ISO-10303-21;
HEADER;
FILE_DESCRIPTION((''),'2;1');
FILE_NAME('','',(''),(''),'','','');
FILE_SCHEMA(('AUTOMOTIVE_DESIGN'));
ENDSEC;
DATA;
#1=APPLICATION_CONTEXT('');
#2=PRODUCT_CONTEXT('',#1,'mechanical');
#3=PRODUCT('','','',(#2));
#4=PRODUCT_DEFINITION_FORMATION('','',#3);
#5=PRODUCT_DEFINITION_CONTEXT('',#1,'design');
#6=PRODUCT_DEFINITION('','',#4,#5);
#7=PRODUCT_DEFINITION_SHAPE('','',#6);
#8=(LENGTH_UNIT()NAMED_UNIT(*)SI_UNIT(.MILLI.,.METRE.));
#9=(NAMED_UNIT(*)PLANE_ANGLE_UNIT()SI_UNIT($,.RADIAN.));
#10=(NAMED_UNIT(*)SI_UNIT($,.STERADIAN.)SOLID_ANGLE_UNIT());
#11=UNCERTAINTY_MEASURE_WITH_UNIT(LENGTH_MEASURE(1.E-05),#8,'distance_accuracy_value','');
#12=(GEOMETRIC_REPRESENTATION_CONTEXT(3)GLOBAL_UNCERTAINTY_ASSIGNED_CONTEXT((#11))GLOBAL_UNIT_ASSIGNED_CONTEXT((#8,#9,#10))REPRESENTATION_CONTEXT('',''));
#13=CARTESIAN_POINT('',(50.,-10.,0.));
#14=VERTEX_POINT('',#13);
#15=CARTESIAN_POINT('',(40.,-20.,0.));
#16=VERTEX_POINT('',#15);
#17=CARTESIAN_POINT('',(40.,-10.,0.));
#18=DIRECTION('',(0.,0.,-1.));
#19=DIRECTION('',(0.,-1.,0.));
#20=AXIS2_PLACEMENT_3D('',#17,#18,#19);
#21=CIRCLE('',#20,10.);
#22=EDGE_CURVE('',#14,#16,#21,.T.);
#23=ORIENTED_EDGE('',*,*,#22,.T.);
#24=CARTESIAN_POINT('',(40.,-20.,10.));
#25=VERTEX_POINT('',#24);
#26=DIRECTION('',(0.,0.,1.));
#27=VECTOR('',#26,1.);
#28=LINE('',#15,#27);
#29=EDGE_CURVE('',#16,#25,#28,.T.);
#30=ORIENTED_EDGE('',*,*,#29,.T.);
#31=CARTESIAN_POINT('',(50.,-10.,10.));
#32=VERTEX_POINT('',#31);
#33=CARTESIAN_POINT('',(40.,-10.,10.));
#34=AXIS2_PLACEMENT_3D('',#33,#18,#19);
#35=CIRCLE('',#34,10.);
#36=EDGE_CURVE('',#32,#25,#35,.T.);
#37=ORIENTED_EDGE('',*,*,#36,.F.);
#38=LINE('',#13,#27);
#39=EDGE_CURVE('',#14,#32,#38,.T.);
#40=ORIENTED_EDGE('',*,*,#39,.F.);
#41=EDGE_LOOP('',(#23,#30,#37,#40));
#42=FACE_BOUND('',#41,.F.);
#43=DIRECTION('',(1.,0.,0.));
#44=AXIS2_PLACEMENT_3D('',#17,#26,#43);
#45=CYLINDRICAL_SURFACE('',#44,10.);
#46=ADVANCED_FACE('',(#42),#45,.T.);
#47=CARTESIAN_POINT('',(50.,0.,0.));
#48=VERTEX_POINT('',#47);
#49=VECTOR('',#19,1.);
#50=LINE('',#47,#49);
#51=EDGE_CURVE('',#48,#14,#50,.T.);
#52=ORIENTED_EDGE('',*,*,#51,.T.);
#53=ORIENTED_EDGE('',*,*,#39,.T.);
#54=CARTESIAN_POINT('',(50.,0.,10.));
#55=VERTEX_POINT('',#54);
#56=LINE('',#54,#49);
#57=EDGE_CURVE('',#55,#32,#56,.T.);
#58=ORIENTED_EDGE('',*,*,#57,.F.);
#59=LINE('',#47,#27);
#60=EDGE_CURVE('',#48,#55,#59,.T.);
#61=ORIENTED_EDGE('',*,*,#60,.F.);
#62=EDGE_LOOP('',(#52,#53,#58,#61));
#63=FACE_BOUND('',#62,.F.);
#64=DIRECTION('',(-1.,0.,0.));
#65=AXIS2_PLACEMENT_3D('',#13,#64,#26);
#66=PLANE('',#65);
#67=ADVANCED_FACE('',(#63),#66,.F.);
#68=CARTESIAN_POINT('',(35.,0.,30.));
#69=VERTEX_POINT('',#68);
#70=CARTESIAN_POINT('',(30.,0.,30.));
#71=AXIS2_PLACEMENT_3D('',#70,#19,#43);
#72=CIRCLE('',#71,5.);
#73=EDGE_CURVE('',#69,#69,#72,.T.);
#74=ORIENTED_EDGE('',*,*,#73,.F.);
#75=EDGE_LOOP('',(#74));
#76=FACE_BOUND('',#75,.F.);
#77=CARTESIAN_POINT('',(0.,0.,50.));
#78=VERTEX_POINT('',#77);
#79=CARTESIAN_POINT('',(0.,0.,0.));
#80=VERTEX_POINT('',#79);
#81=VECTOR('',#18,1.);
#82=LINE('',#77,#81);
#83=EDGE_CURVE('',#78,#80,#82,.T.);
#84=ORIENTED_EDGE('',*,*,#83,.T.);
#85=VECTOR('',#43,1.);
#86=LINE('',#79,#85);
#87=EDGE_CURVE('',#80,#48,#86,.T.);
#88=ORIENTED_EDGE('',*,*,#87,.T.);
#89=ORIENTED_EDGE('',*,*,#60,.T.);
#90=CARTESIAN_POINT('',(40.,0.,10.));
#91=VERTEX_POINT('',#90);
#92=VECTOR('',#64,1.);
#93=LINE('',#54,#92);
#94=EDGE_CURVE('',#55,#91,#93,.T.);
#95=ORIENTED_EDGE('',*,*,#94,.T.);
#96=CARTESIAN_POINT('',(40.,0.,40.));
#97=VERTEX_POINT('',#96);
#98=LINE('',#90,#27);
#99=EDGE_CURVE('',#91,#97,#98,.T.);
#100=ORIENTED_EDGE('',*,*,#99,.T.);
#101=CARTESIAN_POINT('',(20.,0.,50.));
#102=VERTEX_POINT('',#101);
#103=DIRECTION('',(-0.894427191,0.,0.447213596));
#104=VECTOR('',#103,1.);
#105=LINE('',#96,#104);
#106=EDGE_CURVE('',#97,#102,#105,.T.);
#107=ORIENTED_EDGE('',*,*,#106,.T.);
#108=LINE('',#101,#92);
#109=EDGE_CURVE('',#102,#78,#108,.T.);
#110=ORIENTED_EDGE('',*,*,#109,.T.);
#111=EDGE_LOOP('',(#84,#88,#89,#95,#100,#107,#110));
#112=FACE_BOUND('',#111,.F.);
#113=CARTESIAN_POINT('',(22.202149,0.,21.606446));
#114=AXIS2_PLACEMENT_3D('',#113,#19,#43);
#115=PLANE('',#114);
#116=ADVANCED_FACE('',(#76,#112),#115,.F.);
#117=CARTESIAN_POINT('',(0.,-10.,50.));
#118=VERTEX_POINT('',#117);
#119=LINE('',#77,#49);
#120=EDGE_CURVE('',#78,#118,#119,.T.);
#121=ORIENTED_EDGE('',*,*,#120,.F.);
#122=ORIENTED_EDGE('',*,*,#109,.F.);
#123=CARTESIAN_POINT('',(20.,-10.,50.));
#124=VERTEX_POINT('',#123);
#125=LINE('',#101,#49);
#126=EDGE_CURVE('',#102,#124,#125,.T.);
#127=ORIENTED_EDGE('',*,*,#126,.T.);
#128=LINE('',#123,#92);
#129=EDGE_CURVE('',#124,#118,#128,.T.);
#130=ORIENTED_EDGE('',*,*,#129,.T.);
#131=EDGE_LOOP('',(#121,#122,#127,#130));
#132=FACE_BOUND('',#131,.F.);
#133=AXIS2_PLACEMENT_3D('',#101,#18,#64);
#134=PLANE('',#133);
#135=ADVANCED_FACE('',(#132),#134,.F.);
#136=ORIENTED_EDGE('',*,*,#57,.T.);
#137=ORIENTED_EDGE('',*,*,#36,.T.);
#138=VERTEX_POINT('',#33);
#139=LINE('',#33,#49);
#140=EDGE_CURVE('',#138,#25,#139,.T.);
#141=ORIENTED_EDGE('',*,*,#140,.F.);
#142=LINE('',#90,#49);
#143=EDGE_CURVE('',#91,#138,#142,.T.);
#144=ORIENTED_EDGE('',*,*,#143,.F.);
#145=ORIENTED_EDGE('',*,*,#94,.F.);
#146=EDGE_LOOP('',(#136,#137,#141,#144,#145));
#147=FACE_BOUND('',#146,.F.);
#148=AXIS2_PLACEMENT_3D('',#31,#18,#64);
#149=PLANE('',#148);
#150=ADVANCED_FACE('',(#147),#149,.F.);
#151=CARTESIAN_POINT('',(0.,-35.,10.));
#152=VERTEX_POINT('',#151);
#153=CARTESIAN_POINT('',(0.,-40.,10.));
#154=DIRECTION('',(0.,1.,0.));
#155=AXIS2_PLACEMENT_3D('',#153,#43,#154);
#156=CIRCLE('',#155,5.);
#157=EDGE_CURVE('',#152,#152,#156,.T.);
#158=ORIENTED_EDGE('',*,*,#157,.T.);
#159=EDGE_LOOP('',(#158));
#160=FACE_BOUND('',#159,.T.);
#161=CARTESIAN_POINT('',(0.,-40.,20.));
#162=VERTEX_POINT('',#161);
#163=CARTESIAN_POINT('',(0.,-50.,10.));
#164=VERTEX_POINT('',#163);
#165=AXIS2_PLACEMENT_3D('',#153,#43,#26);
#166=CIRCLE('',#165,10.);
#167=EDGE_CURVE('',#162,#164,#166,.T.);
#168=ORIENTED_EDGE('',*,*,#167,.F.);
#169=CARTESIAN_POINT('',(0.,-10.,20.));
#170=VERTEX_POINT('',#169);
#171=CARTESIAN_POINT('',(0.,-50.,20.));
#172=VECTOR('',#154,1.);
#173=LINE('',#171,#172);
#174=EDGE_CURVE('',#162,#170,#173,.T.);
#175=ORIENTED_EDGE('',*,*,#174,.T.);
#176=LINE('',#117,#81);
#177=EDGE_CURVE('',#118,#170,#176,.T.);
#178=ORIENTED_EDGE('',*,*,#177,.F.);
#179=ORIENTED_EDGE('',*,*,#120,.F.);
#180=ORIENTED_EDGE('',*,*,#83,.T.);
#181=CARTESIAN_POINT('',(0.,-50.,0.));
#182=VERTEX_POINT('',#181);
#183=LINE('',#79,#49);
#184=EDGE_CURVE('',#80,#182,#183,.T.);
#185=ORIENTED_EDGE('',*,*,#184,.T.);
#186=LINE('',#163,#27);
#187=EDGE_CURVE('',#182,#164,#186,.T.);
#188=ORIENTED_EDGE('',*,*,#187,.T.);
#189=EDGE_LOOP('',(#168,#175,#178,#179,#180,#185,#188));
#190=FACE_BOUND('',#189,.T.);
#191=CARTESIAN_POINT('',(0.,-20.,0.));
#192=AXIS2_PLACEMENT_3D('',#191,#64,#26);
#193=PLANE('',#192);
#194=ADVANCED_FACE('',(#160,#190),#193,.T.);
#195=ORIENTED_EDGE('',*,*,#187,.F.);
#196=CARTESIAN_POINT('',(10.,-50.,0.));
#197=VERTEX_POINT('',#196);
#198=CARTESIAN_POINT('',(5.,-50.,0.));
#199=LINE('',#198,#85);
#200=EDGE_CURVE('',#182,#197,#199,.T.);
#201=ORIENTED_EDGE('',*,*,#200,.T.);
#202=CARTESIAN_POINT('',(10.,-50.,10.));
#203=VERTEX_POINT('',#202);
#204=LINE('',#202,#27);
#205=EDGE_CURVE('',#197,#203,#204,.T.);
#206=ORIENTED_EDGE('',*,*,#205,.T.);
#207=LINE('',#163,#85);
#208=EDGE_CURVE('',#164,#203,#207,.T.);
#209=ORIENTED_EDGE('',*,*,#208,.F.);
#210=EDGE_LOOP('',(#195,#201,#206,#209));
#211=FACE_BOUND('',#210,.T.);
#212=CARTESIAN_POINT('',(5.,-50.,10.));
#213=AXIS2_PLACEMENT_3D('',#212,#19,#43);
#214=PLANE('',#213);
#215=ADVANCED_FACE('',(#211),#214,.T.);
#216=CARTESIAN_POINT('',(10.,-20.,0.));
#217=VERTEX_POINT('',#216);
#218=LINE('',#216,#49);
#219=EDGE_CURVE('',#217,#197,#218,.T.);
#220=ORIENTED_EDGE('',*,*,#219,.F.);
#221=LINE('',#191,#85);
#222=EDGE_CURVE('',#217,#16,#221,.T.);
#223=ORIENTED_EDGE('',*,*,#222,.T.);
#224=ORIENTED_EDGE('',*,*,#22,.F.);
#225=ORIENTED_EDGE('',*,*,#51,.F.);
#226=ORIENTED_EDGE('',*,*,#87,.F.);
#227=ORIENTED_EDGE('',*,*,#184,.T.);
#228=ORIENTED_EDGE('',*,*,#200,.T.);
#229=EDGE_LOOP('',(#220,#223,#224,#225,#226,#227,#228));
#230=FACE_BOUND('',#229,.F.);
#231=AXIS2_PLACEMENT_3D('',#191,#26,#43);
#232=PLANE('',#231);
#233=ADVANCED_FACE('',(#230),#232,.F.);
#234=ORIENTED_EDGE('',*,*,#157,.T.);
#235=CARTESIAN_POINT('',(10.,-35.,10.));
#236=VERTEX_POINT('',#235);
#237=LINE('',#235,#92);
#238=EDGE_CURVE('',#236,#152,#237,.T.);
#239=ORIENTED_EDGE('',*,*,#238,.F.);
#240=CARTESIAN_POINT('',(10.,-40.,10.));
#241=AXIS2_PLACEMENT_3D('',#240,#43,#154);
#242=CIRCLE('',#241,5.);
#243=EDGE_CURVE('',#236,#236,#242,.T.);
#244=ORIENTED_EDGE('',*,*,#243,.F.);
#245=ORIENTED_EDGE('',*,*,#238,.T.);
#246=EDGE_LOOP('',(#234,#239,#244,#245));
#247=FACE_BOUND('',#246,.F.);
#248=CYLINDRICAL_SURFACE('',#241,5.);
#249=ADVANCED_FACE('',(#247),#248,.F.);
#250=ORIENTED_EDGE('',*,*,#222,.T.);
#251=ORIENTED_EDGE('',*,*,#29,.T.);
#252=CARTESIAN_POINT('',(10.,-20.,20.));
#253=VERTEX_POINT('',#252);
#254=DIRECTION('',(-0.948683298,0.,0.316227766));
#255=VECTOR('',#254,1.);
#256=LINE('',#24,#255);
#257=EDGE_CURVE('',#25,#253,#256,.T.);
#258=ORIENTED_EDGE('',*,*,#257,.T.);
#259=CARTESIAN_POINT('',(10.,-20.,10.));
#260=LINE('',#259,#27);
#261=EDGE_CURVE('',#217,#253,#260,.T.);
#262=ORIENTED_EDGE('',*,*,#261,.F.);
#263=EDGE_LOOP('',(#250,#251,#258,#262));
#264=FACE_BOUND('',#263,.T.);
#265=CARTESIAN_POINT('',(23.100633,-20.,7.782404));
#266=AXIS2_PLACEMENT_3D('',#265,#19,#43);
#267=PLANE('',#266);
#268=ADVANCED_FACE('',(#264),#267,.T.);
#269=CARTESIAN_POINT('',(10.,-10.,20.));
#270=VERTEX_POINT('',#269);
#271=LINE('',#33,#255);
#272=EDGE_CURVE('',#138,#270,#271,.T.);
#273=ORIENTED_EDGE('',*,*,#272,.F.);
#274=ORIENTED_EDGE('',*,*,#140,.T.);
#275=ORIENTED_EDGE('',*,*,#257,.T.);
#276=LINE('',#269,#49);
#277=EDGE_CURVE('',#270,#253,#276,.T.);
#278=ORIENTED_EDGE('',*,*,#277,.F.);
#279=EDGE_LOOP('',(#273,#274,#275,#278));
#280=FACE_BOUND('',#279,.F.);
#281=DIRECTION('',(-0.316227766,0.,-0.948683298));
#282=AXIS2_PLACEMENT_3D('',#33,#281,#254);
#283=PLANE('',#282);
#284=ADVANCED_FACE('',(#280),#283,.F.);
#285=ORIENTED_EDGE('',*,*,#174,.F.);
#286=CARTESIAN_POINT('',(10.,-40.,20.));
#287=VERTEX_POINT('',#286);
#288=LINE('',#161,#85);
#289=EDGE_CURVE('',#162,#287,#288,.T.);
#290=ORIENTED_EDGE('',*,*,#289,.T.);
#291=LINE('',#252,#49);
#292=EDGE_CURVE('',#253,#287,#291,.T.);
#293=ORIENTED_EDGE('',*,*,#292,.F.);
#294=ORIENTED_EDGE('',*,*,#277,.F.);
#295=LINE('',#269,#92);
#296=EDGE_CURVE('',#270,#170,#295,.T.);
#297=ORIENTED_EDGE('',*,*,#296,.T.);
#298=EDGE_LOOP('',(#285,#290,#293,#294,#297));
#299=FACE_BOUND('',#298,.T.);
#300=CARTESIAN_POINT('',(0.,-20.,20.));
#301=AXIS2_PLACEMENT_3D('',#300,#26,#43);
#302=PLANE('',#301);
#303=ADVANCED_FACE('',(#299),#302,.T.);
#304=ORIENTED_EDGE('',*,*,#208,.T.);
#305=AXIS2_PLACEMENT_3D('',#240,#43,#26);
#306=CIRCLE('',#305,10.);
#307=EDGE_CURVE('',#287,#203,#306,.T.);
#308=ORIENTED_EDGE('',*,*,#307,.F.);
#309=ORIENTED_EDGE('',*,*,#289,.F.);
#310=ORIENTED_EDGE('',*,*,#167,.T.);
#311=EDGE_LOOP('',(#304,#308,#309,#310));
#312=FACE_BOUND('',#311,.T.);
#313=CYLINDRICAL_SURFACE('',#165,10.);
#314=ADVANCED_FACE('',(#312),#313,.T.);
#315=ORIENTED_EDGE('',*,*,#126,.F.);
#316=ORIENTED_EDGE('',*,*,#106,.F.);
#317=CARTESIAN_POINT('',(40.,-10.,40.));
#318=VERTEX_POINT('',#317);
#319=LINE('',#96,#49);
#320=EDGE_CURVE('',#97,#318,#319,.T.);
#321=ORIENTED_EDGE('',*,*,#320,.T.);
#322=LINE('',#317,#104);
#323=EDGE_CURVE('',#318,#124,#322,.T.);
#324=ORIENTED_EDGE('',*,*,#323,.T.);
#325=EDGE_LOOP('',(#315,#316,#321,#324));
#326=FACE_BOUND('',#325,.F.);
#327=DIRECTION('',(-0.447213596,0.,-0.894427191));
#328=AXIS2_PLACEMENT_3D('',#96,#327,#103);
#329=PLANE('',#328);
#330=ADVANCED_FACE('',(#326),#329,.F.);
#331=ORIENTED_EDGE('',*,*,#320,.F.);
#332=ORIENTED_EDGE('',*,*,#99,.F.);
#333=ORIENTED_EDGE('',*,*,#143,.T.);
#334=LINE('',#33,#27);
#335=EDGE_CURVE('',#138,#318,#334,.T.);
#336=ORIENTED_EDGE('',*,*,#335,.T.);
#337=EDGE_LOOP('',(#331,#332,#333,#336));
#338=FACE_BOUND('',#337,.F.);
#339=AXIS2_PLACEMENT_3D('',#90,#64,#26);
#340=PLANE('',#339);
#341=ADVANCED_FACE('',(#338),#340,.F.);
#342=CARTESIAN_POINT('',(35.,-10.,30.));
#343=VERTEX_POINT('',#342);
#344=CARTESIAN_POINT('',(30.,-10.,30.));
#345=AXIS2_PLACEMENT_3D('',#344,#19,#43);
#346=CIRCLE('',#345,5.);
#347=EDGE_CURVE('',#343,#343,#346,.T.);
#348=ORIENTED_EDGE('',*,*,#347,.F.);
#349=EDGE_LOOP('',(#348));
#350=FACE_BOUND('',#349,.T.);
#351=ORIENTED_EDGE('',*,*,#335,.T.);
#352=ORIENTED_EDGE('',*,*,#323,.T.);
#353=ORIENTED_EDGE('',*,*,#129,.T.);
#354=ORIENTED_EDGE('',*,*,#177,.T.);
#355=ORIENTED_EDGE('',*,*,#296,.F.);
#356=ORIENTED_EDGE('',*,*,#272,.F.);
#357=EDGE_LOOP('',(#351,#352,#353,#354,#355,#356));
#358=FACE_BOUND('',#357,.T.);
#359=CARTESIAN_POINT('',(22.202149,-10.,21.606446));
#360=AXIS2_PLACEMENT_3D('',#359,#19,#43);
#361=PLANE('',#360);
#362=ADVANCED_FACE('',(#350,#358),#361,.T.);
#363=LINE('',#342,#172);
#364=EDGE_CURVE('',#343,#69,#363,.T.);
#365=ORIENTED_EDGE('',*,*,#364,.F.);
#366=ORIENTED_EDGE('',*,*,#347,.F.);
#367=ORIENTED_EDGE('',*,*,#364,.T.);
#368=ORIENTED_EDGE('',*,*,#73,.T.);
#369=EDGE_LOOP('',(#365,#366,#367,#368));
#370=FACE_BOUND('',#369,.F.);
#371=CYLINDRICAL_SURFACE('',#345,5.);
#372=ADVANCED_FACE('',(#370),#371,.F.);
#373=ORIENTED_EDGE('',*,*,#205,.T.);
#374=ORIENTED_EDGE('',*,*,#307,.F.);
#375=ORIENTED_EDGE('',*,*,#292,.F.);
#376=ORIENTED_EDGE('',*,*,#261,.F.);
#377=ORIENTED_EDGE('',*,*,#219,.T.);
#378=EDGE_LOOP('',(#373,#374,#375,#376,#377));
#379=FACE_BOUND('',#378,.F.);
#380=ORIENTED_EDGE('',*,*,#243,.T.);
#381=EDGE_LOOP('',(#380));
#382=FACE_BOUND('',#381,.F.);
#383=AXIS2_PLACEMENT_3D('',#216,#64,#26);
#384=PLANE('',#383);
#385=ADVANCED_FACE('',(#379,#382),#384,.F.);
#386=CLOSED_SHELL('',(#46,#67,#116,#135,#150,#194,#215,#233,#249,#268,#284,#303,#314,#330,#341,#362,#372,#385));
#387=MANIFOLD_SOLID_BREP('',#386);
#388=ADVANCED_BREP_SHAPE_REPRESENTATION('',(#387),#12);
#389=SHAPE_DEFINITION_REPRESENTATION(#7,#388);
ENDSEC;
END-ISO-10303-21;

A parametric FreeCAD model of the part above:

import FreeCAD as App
import Part
import Sketcher


def edges_at(feature, points):
    """Names of the edges that pass closest to the given points."""
    edges = feature.Shape.Edges
    near = lambda p: min(range(len(edges)), key=lambda i: edges[i].distToShape(Part.Vertex(*p))[0])
    return sorted({f"Edge{near(p) + 1}" for p in points})


def add_polygon(sketch, points):
    """Adds a closed chain of lines whose ends are joined by coincident constraints."""
    first, n = sketch.GeometryCount, len(points)
    for a, b in zip(points, points[1:] + points[:1]):
        sketch.addGeometry(Part.LineSegment(App.Vector(*a, 0), App.Vector(*b, 0)), False)
    for i in range(n):
        sketch.addConstraint(Sketcher.Constraint("Coincident", first + i, 2, first + (i + 1) % n, 1))

doc = App.newDocument("Part")
params = doc.addObject("Spreadsheet::Sheet", "Params")
for row, (alias, value) in enumerate([
    ("sketch1_width", "50 mm"),
    ("sketch1_width2", "10 mm"),
    ("sketch1_width3", "20 mm"),
    ("sketch1_height", "30 mm"),
    ("pad1_length", "10 mm"),
    ("sketch2_width", "50 mm"),
    ("sketch2_width2", "10 mm"),
    ("sketch2_height", "20 mm"),
    ("pad2_length", "10 mm"),
    ("sketch3_diameter", "10 mm"),
    ("sketch4_width", "10 mm"),
    ("sketch4_height", "20 mm"),
    ("pad3_length", "30 mm"),
    ("fillet_radius", "10 mm"),
    ("sketch5_diameter", "10 mm"),
], start=1):
    params.set(f"A{row}", alias)
    params.set(f"B{row}", "=" + value)
    params.setAlias(f"B{row}", alias)

body = doc.addObject("PartDesign::Body", "Body")

sketch1 = doc.addObject("Sketcher::SketchObject", "Sketch")
body.addObject(sketch1)
sketch1.AttachmentSupport = (doc.XZ_Plane, [""])
sketch1.MapMode = "FlatFace"
add_polygon(sketch1, [(0, 50), (0, 0), (50, 0), (50, 10), (40, 10), (40, 40), (20, 50)])
sketch1.addConstraint(Sketcher.Constraint("Vertical", 0))
sketch1.addConstraint(Sketcher.Constraint("Horizontal", 1))
sketch1.addConstraint(Sketcher.Constraint("Vertical", 2))
sketch1.addConstraint(Sketcher.Constraint("Horizontal", 3))
sketch1.addConstraint(Sketcher.Constraint("Vertical", 4))
sketch1.addConstraint(Sketcher.Constraint("Horizontal", 6))
sketch1.addConstraint(Sketcher.Constraint("Coincident", 0, 2, -1, 1))
sketch1.addConstraint(Sketcher.Constraint("Equal", 1, 0))
sketch1.addConstraint(Sketcher.Constraint("Equal", 3, 2))
sketch1.addConstraint(Sketcher.Constraint("DistanceX", 1, 1, 1, 2, 50.0))
sketch1.addConstraint(Sketcher.Constraint("DistanceX", 3, 2, 3, 1, 10.0))
sketch1.addConstraint(Sketcher.Constraint("DistanceX", 6, 2, 6, 1, 20.0))
sketch1.addConstraint(Sketcher.Constraint("DistanceY", 4, 1, 4, 2, 30.0))
sketch1.setExpression("Constraints[16]", "Params.sketch1_width")
sketch1.setExpression("Constraints[17]", "Params.sketch1_width2")
sketch1.setExpression("Constraints[18]", "Params.sketch1_width3")
sketch1.setExpression("Constraints[19]", "Params.sketch1_height")
pad1 = doc.addObject("PartDesign::Pad", "Pad")
body.addObject(pad1)
pad1.Profile = sketch1
pad1.setExpression("Length", "Params.pad1_length")

sketch2 = doc.addObject("Sketcher::SketchObject", "Sketch001")
body.addObject(sketch2)
sketch2.AttachmentSupport = (doc.XZ_Plane, [""])
sketch2.MapMode = "FlatFace"
sketch2.AttachmentOffset = App.Placement(App.Vector(0, 0, 10), App.Rotation())
add_polygon(sketch2, [(0, 20), (0, 0), (50, 0), (50, 10), (40, 10), (10, 20)])
sketch2.addConstraint(Sketcher.Constraint("Vertical", 0))
sketch2.addConstraint(Sketcher.Constraint("Horizontal", 1))
sketch2.addConstraint(Sketcher.Constraint("Vertical", 2))
sketch2.addConstraint(Sketcher.Constraint("Horizontal", 3))
sketch2.addConstraint(Sketcher.Constraint("Horizontal", 5))
sketch2.addConstraint(Sketcher.Constraint("Coincident", 0, 2, -1, 1))
sketch2.addConstraint(Sketcher.Constraint("Equal", 3, 5))
sketch2.addConstraint(Sketcher.Constraint("Equal", 5, 2))
sketch2.addConstraint(Sketcher.Constraint("DistanceX", 1, 1, 1, 2, 50.0))
sketch2.addConstraint(Sketcher.Constraint("DistanceX", 3, 2, 3, 1, 10.0))
sketch2.addConstraint(Sketcher.Constraint("DistanceY", 0, 2, 0, 1, 20.0))
sketch2.setExpression("Constraints[14]", "Params.sketch2_width")
sketch2.setExpression("Constraints[15]", "Params.sketch2_width2")
sketch2.setExpression("Constraints[16]", "Params.sketch2_height")
pad2 = doc.addObject("PartDesign::Pad", "Pad001")
body.addObject(pad2)
pad2.Profile = sketch2
pad2.setExpression("Length", "Params.pad2_length")

sketch3 = doc.addObject("Sketcher::SketchObject", "Sketch002")
body.addObject(sketch3)
sketch3.AttachmentSupport = (doc.XZ_Plane, [""])
sketch3.MapMode = "FlatFace"
sketch3.AttachmentOffset = App.Placement(App.Vector(0, 0, 10), App.Rotation())
sketch3.addGeometry(Part.Circle(App.Vector(30, 30, 0), App.Vector(0, 0, 1), 5), False)
sketch3.addConstraint(Sketcher.Constraint("Diameter", 0, 10.0))
sketch3.addConstraint(Sketcher.Constraint("DistanceX", -1, 1, 0, 3, 30.0))
sketch3.addConstraint(Sketcher.Constraint("DistanceY", -1, 1, 0, 3, 30.0))
sketch3.setExpression("Constraints[0]", "Params.sketch3_diameter")
pocket1 = doc.addObject("PartDesign::Pocket", "Pocket")
body.addObject(pocket1)
pocket1.Profile = sketch3
pocket1.Type = "ThroughAll"

sketch4 = doc.addObject("Sketcher::SketchObject", "Sketch003")
body.addObject(sketch4)
sketch4.AttachmentSupport = (doc.XZ_Plane, [""])
sketch4.MapMode = "FlatFace"
sketch4.AttachmentOffset = App.Placement(App.Vector(0, 0, 20), App.Rotation())
add_polygon(sketch4, [(0, 20), (0, 0), (10, 0), (10, 20)])
sketch4.addConstraint(Sketcher.Constraint("Vertical", 0))
sketch4.addConstraint(Sketcher.Constraint("Horizontal", 1))
sketch4.addConstraint(Sketcher.Constraint("Vertical", 2))
sketch4.addConstraint(Sketcher.Constraint("Horizontal", 3))
sketch4.addConstraint(Sketcher.Constraint("Coincident", 0, 2, -1, 1))
sketch4.addConstraint(Sketcher.Constraint("DistanceX", 1, 1, 1, 2, 10.0))
sketch4.addConstraint(Sketcher.Constraint("DistanceY", 0, 2, 0, 1, 20.0))
sketch4.setExpression("Constraints[9]", "Params.sketch4_width")
sketch4.setExpression("Constraints[10]", "Params.sketch4_height")
pad3 = doc.addObject("PartDesign::Pad", "Pad002")
body.addObject(pad3)
pad3.Profile = sketch4
pad3.setExpression("Length", "Params.pad3_length")
doc.recompute()

fillet = doc.addObject("PartDesign::Fillet", "Fillet")
body.addObject(fillet)
fillet.Base = (pad3, edges_at(pad3, [(50, -20, 5), (5, -50, 20)]))
fillet.setExpression("Radius", "Params.fillet_radius")

sketch5 = doc.addObject("Sketcher::SketchObject", "Sketch004")
body.addObject(sketch5)
sketch5.AttachmentSupport = (doc.YZ_Plane, [""])
sketch5.MapMode = "FlatFace"
sketch5.AttachmentOffset = App.Placement(App.Vector(0, 0, 10), App.Rotation())
sketch5.addGeometry(Part.Circle(App.Vector(-40, 10, 0), App.Vector(0, 0, 1), 5), False)
sketch5.addConstraint(Sketcher.Constraint("Diameter", 0, 10.0))
sketch5.addConstraint(Sketcher.Constraint("DistanceX", 0, 3, -1, 1, 40.0))
sketch5.addConstraint(Sketcher.Constraint("DistanceY", -1, 1, 0, 3, 10.0))
sketch5.setExpression("Constraints[0]", "Params.sketch5_diameter")
pocket2 = doc.addObject("PartDesign::Pocket", "Pocket001")
body.addObject(pocket2)
pocket2.Profile = sketch5
pocket2.Type = "ThroughAll"

doc.recompute()
